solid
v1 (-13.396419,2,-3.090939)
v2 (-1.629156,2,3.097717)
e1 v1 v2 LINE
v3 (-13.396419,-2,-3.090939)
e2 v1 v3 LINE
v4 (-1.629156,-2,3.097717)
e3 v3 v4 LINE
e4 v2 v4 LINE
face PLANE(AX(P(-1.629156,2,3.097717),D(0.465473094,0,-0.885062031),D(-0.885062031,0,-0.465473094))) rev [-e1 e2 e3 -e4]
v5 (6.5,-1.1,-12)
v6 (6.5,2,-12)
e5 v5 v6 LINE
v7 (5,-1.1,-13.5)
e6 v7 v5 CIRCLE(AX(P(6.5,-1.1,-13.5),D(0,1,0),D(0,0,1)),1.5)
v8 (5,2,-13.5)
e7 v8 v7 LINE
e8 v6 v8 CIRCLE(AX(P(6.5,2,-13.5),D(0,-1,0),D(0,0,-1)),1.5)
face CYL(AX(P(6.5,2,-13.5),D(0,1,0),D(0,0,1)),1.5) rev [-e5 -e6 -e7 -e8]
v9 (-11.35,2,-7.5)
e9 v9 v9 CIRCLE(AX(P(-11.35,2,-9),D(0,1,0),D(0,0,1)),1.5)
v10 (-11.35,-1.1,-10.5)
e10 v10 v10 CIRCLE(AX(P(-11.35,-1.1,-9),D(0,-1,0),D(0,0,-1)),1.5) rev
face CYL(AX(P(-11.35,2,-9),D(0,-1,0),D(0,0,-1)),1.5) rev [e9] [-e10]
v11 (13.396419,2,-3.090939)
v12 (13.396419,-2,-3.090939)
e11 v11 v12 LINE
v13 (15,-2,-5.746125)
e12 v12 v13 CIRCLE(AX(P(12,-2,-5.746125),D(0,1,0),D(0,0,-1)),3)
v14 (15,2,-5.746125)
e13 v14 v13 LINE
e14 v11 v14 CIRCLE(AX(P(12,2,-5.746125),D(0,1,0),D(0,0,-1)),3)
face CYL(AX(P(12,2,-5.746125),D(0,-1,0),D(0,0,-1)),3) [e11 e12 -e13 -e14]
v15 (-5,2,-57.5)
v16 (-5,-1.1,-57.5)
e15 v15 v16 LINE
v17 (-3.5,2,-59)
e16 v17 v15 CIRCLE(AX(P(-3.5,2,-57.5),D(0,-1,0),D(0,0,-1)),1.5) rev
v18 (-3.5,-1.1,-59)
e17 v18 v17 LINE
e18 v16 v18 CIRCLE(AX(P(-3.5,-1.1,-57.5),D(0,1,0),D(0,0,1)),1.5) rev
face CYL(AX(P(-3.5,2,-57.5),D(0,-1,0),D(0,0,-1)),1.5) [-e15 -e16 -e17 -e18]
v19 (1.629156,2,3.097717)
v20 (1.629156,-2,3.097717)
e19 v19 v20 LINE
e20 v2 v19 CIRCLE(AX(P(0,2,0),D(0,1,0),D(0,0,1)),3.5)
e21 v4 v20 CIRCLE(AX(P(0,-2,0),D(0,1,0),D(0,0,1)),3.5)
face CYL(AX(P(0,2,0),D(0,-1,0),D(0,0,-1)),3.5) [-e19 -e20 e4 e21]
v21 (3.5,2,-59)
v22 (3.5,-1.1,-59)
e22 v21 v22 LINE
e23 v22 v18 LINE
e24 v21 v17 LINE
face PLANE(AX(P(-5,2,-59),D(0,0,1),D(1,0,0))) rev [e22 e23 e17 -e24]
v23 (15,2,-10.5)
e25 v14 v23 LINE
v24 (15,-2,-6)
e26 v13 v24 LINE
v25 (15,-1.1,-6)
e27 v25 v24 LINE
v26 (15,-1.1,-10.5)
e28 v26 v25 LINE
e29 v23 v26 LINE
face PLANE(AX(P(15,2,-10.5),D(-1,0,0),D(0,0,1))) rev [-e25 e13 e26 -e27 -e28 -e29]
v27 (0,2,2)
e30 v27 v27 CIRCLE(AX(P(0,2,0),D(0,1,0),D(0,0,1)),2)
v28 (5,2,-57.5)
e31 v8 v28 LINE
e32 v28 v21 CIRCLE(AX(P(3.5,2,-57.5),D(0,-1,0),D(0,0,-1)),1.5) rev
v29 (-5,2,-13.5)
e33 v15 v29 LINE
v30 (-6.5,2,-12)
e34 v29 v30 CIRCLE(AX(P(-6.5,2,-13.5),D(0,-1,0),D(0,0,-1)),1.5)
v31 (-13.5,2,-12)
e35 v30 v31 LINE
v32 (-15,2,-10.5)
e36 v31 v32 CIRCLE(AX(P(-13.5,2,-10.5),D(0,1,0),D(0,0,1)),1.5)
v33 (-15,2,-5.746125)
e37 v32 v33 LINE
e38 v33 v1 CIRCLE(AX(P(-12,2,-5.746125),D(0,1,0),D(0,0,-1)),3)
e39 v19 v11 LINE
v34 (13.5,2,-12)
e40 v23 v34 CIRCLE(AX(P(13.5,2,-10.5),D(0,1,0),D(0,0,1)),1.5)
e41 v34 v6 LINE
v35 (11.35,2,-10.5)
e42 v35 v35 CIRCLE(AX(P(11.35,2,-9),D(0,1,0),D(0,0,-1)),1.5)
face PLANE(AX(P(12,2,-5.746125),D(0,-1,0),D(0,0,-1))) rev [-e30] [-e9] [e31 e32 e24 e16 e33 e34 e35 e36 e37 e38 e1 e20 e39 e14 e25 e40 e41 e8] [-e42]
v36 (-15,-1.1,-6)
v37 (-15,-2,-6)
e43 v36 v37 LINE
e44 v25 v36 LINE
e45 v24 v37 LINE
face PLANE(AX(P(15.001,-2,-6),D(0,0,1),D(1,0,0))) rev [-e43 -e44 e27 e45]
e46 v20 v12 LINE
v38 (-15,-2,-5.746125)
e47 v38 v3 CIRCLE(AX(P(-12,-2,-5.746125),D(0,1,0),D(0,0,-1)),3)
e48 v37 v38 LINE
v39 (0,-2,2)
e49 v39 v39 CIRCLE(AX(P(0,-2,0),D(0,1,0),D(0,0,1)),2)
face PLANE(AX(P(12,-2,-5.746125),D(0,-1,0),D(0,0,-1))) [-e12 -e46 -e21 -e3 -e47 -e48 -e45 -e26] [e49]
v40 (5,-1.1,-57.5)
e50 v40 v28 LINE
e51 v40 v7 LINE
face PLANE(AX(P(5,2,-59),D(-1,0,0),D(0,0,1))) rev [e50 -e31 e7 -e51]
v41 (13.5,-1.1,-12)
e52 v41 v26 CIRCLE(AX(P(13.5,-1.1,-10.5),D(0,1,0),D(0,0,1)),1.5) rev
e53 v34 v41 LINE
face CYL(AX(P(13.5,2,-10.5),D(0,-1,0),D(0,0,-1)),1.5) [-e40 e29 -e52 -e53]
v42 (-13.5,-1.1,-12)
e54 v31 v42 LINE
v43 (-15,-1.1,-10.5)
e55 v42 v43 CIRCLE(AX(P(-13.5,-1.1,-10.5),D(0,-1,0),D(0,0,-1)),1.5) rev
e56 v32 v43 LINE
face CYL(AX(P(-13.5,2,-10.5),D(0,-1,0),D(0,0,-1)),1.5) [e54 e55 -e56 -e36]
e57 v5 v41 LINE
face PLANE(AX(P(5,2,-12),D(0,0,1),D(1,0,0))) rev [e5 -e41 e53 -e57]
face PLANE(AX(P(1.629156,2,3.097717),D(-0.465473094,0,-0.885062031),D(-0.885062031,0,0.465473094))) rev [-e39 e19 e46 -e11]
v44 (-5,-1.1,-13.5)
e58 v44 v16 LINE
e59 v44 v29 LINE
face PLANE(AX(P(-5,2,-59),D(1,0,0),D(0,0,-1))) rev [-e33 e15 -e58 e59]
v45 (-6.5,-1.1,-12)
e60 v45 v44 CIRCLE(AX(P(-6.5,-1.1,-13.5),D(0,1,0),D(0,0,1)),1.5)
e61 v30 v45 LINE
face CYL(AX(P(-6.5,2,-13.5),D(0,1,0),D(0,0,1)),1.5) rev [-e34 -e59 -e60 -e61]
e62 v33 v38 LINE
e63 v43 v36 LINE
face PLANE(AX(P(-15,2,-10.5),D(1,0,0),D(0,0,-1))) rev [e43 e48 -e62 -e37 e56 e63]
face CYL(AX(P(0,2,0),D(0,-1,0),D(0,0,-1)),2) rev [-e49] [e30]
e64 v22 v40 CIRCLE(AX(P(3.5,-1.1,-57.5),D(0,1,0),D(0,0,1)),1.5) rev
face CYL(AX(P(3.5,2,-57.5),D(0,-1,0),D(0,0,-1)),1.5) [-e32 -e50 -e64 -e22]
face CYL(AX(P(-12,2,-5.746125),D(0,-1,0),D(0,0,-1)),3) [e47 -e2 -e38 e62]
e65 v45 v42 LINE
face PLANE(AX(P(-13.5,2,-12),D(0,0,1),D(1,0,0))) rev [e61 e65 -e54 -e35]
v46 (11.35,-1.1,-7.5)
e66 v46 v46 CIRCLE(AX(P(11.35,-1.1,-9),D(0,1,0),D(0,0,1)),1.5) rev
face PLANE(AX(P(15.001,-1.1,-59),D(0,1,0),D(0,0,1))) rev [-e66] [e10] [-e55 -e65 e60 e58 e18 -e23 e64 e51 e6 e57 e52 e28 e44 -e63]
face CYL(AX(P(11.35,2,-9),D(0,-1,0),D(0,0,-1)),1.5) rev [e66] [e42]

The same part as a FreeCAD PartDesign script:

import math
import FreeCAD as App
import Part
import Sketcher
from FreeCAD import Vector


def edges_at(feature, points):
    """Names of the edges that pass closest to the given points."""
    edges = feature.Shape.Edges
    near = lambda p: min(range(len(edges)), key=lambda i: edges[i].distToShape(Part.Vertex(*p))[0])
    return sorted({f"Edge{near(p) + 1}" for p in points})


def add_polygon(sketch, points):
    """Adds a closed chain of lines whose ends are joined by coincident constraints."""
    first, n = sketch.GeometryCount, len(points)
    for a, b in zip(points, points[1:] + points[:1]):
        sketch.addGeometry(Part.LineSegment(App.Vector(*a, 0), App.Vector(*b, 0)), False)
    for i in range(n):
        sketch.addConstraint(Sketcher.Constraint("Coincident", first + i, 2, first + (i + 1) % n, 1))

doc = App.newDocument("Part")
body = doc.addObject("PartDesign::Body", "Body")

sketch1 = body.newObject("Sketcher::SketchObject", "Sketch")
sketch1.AttachmentSupport = (doc.getObject("XZ_Plane"), [""])
sketch1.MapMode = "FlatFace"
sketch1.addGeometry(Part.LineSegment(Vector(-5, -12, 0), Vector(-13.5, -12, 0)), False)
sketch1.addGeometry(Part.ArcOfCircle(Part.Circle(Vector(-13.5, -10.5, 0), Vector(0, 0, 1), 1.5), math.radians(180), math.radians(270)), False)
sketch1.addGeometry(Part.LineSegment(Vector(-15, -10.5, 0), Vector(-15, -5.746125, 0)), False)
sketch1.addGeometry(Part.ArcOfCircle(Part.Circle(Vector(-12, -5.746125, 0), Vector(0, 0, 1), 3), math.radians(117.740844), math.radians(180)), False)
sketch1.addGeometry(Part.LineSegment(Vector(-13.396419, -3.090939, 0), Vector(-1.629156, 3.097717, 0)), False)
sketch1.addGeometry(Part.ArcOfCircle(Part.Circle(Vector(0, 0, 0), Vector(0, 0, 1), 3.5), math.radians(62.259156), math.radians(117.740844)), False)
sketch1.addGeometry(Part.LineSegment(Vector(1.629156, 3.097717, 0), Vector(13.396419, -3.090939, 0)), False)
sketch1.addGeometry(Part.ArcOfCircle(Part.Circle(Vector(12, -5.746125, 0), Vector(0, 0, 1), 3), math.radians(0), math.radians(62.259156)), False)
sketch1.addGeometry(Part.LineSegment(Vector(15, -5.746125, 0), Vector(15, -10.5, 0)), False)
sketch1.addGeometry(Part.ArcOfCircle(Part.Circle(Vector(13.5, -10.5, 0), Vector(0, 0, 1), 1.5), math.radians(-90), math.radians(0)), False)
sketch1.addGeometry(Part.LineSegment(Vector(13.5, -12, 0), Vector(5, -12, 0)), False)
sketch1.addGeometry(Part.LineSegment(Vector(5, -12, 0), Vector(5, -59, 0)), False)
sketch1.addGeometry(Part.LineSegment(Vector(5, -59, 0), Vector(-5, -59, 0)), False)
sketch1.addGeometry(Part.LineSegment(Vector(-5, -59, 0), Vector(-5, -12, 0)), False)
sketch1.addGeometry(Part.Circle(Vector(0, 0, 0), Vector(0, 0, 1), 2), False)
sketch1.addGeometry(Part.Circle(Vector(11.35, -9, 0), Vector(0, 0, 1), 1.5), False)
sketch1.addGeometry(Part.Circle(Vector(-11.35, -9, 0), Vector(0, 0, 1), 1.5), False)
sketch1.addConstraint(Sketcher.Constraint("Tangent", 0, 2, 1, 2))
sketch1.addConstraint(Sketcher.Constraint("Tangent", 1, 1, 2, 1))
sketch1.addConstraint(Sketcher.Constraint("Tangent", 2, 2, 3, 2))
sketch1.addConstraint(Sketcher.Constraint("Tangent", 3, 1, 4, 1))
sketch1.addConstraint(Sketcher.Constraint("Tangent", 4, 2, 5, 2))
sketch1.addConstraint(Sketcher.Constraint("Tangent", 5, 1, 6, 1))
sketch1.addConstraint(Sketcher.Constraint("Tangent", 6, 2, 7, 2))
sketch1.addConstraint(Sketcher.Constraint("Tangent", 7, 1, 8, 1))
sketch1.addConstraint(Sketcher.Constraint("Tangent", 8, 2, 9, 2))
sketch1.addConstraint(Sketcher.Constraint("Tangent", 9, 1, 10, 1))
sketch1.addConstraint(Sketcher.Constraint("Coincident", 10, 2, 11, 1))
sketch1.addConstraint(Sketcher.Constraint("Coincident", 11, 2, 12, 1))
sketch1.addConstraint(Sketcher.Constraint("Coincident", 12, 2, 13, 1))
sketch1.addConstraint(Sketcher.Constraint("Coincident", 13, 2, 0, 1))
sketch1.addConstraint(Sketcher.Constraint("Horizontal", 0))
sketch1.addConstraint(Sketcher.Constraint("Vertical", 2))
sketch1.addConstraint(Sketcher.Constraint("Vertical", 8))
sketch1.addConstraint(Sketcher.Constraint("Horizontal", 10))
sketch1.addConstraint(Sketcher.Constraint("Vertical", 11))
sketch1.addConstraint(Sketcher.Constraint("Horizontal", 12))
sketch1.addConstraint(Sketcher.Constraint("Vertical", 13))
sketch1.addConstraint(Sketcher.Constraint("Coincident", 5, 3, -1, 1))
sketch1.addConstraint(Sketcher.Constraint("Coincident", 14, 3, -1, 1))
sketch1.addConstraint(Sketcher.Constraint("Equal", 3, 7))
sketch1.addConstraint(Sketcher.Constraint("Equal", 1, 9))
sketch1.addConstraint(Sketcher.Constraint("Equal", 9, 15))
sketch1.addConstraint(Sketcher.Constraint("Equal", 15, 16))
sketch1.addConstraint(Sketcher.Constraint("Symmetric", 3, 3, 7, 3, -2))
sketch1.addConstraint(Sketcher.Constraint("Symmetric", 15, 3, 16, 3, -2))
sketch1.addConstraint(Sketcher.Constraint("Symmetric", 10, 2, 13, 2, -2))
sketch1.addConstraint(Sketcher.Constraint("Diameter", 14, 4.0))
sketch1.addConstraint(Sketcher.Constraint("Diameter", 15, 3.0))
sketch1.addConstraint(Sketcher.Constraint("Radius", 3, 3.0))
sketch1.addConstraint(Sketcher.Constraint("Radius", 5, 3.5))
sketch1.addConstraint(Sketcher.Constraint("DistanceX", 12, 2, 12, 1, 10.0))
sketch1.addConstraint(Sketcher.Constraint("DistanceY", 11, 2, 11, 1, 47.0))
sketch1.addConstraint(Sketcher.Constraint("DistanceX", 0, 2, 0, 1, 8.5))
sketch1.addConstraint(Sketcher.Constraint("DistanceY", 15, 3, -1, 1, 9.0))
sketch1.addConstraint(Sketcher.Constraint("DistanceY", 0, 2, -1, 1, 12.0))
sketch1.addConstraint(Sketcher.Constraint("DistanceX", 16, 3, 15, 3, 22.7))
sketch1.addConstraint(Sketcher.Constraint("Distance", 4, 13.295411))
pad1 = body.newObject("PartDesign::Pad", "Pad")
pad1.Profile = sketch1
pad1.Length = 4
pad1.Midplane = True

sketch2 = body.newObject("Sketcher::SketchObject", "Sketch001")
sketch2.AttachmentSupport = (doc.getObject("YZ_Plane"), [""])
sketch2.MapMode = "FlatFace"
sketch2.AttachmentOffset = App.Placement(Vector(0, 0, -5), App.Rotation())
add_polygon(sketch2, [(-1.1, -59), (-2, -59), (-2, -6), (-1.1, -6)])
sketch2.addConstraint(Sketcher.Constraint("Horizontal", 0))
sketch2.addConstraint(Sketcher.Constraint("Vertical", 1))
sketch2.addConstraint(Sketcher.Constraint("Horizontal", 2))
sketch2.addConstraint(Sketcher.Constraint("Vertical", 3))
sketch2.addConstraint(Sketcher.Constraint("DistanceY", 1, 1, 1, 2, 53.0))
sketch2.addConstraint(Sketcher.Constraint("DistanceX", 0, 2, 0, 1, 0.9))
sketch2.addConstraint(Sketcher.Constraint("DistanceX", 0, 2, -1, 1, 2.0))
sketch2.addConstraint(Sketcher.Constraint("DistanceY", 0, 2, -1, 1, 59.0))
pocket1 = body.newObject("PartDesign::Pocket", "Pocket")
pocket1.Profile = sketch2
pocket1.Length = 10

sketch3 = body.newObject("Sketcher::SketchObject", "Sketch002")
sketch3.AttachmentSupport = (doc.getObject("YZ_Plane"), [""])
sketch3.MapMode = "FlatFace"
sketch3.AttachmentOffset = App.Placement(Vector(0, 0, -5), App.Rotation())
add_polygon(sketch3, [(-1.1, -59), (-2, -59), (-2, -6), (-1.1, -6)])
sketch3.addConstraint(Sketcher.Constraint("Horizontal", 0))
sketch3.addConstraint(Sketcher.Constraint("Vertical", 1))
sketch3.addConstraint(Sketcher.Constraint("Horizontal", 2))
sketch3.addConstraint(Sketcher.Constraint("Vertical", 3))
sketch3.addConstraint(Sketcher.Constraint("DistanceY", 1, 1, 1, 2, 53.0))
sketch3.addConstraint(Sketcher.Constraint("DistanceX", 0, 2, 0, 1, 0.9))
sketch3.addConstraint(Sketcher.Constraint("DistanceX", 0, 2, -1, 1, 2.0))
sketch3.addConstraint(Sketcher.Constraint("DistanceY", 0, 2, -1, 1, 59.0))
pocket2 = body.newObject("PartDesign::Pocket", "Pocket001")
pocket2.Profile = sketch3
pocket2.Length = 20
pocket2.Reversed = True
doc.recompute()

fillet = body.newObject("PartDesign::Fillet", "Fillet")
fillet.Base = (pocket2, edges_at(pocket2, [
    (-5, 0.45, -12),
    (-5, 0.45, -59),
    (5, 0.45, -59),
    (5, 0.45, -12),
]))
fillet.Radius = 1.5

doc.recompute()
